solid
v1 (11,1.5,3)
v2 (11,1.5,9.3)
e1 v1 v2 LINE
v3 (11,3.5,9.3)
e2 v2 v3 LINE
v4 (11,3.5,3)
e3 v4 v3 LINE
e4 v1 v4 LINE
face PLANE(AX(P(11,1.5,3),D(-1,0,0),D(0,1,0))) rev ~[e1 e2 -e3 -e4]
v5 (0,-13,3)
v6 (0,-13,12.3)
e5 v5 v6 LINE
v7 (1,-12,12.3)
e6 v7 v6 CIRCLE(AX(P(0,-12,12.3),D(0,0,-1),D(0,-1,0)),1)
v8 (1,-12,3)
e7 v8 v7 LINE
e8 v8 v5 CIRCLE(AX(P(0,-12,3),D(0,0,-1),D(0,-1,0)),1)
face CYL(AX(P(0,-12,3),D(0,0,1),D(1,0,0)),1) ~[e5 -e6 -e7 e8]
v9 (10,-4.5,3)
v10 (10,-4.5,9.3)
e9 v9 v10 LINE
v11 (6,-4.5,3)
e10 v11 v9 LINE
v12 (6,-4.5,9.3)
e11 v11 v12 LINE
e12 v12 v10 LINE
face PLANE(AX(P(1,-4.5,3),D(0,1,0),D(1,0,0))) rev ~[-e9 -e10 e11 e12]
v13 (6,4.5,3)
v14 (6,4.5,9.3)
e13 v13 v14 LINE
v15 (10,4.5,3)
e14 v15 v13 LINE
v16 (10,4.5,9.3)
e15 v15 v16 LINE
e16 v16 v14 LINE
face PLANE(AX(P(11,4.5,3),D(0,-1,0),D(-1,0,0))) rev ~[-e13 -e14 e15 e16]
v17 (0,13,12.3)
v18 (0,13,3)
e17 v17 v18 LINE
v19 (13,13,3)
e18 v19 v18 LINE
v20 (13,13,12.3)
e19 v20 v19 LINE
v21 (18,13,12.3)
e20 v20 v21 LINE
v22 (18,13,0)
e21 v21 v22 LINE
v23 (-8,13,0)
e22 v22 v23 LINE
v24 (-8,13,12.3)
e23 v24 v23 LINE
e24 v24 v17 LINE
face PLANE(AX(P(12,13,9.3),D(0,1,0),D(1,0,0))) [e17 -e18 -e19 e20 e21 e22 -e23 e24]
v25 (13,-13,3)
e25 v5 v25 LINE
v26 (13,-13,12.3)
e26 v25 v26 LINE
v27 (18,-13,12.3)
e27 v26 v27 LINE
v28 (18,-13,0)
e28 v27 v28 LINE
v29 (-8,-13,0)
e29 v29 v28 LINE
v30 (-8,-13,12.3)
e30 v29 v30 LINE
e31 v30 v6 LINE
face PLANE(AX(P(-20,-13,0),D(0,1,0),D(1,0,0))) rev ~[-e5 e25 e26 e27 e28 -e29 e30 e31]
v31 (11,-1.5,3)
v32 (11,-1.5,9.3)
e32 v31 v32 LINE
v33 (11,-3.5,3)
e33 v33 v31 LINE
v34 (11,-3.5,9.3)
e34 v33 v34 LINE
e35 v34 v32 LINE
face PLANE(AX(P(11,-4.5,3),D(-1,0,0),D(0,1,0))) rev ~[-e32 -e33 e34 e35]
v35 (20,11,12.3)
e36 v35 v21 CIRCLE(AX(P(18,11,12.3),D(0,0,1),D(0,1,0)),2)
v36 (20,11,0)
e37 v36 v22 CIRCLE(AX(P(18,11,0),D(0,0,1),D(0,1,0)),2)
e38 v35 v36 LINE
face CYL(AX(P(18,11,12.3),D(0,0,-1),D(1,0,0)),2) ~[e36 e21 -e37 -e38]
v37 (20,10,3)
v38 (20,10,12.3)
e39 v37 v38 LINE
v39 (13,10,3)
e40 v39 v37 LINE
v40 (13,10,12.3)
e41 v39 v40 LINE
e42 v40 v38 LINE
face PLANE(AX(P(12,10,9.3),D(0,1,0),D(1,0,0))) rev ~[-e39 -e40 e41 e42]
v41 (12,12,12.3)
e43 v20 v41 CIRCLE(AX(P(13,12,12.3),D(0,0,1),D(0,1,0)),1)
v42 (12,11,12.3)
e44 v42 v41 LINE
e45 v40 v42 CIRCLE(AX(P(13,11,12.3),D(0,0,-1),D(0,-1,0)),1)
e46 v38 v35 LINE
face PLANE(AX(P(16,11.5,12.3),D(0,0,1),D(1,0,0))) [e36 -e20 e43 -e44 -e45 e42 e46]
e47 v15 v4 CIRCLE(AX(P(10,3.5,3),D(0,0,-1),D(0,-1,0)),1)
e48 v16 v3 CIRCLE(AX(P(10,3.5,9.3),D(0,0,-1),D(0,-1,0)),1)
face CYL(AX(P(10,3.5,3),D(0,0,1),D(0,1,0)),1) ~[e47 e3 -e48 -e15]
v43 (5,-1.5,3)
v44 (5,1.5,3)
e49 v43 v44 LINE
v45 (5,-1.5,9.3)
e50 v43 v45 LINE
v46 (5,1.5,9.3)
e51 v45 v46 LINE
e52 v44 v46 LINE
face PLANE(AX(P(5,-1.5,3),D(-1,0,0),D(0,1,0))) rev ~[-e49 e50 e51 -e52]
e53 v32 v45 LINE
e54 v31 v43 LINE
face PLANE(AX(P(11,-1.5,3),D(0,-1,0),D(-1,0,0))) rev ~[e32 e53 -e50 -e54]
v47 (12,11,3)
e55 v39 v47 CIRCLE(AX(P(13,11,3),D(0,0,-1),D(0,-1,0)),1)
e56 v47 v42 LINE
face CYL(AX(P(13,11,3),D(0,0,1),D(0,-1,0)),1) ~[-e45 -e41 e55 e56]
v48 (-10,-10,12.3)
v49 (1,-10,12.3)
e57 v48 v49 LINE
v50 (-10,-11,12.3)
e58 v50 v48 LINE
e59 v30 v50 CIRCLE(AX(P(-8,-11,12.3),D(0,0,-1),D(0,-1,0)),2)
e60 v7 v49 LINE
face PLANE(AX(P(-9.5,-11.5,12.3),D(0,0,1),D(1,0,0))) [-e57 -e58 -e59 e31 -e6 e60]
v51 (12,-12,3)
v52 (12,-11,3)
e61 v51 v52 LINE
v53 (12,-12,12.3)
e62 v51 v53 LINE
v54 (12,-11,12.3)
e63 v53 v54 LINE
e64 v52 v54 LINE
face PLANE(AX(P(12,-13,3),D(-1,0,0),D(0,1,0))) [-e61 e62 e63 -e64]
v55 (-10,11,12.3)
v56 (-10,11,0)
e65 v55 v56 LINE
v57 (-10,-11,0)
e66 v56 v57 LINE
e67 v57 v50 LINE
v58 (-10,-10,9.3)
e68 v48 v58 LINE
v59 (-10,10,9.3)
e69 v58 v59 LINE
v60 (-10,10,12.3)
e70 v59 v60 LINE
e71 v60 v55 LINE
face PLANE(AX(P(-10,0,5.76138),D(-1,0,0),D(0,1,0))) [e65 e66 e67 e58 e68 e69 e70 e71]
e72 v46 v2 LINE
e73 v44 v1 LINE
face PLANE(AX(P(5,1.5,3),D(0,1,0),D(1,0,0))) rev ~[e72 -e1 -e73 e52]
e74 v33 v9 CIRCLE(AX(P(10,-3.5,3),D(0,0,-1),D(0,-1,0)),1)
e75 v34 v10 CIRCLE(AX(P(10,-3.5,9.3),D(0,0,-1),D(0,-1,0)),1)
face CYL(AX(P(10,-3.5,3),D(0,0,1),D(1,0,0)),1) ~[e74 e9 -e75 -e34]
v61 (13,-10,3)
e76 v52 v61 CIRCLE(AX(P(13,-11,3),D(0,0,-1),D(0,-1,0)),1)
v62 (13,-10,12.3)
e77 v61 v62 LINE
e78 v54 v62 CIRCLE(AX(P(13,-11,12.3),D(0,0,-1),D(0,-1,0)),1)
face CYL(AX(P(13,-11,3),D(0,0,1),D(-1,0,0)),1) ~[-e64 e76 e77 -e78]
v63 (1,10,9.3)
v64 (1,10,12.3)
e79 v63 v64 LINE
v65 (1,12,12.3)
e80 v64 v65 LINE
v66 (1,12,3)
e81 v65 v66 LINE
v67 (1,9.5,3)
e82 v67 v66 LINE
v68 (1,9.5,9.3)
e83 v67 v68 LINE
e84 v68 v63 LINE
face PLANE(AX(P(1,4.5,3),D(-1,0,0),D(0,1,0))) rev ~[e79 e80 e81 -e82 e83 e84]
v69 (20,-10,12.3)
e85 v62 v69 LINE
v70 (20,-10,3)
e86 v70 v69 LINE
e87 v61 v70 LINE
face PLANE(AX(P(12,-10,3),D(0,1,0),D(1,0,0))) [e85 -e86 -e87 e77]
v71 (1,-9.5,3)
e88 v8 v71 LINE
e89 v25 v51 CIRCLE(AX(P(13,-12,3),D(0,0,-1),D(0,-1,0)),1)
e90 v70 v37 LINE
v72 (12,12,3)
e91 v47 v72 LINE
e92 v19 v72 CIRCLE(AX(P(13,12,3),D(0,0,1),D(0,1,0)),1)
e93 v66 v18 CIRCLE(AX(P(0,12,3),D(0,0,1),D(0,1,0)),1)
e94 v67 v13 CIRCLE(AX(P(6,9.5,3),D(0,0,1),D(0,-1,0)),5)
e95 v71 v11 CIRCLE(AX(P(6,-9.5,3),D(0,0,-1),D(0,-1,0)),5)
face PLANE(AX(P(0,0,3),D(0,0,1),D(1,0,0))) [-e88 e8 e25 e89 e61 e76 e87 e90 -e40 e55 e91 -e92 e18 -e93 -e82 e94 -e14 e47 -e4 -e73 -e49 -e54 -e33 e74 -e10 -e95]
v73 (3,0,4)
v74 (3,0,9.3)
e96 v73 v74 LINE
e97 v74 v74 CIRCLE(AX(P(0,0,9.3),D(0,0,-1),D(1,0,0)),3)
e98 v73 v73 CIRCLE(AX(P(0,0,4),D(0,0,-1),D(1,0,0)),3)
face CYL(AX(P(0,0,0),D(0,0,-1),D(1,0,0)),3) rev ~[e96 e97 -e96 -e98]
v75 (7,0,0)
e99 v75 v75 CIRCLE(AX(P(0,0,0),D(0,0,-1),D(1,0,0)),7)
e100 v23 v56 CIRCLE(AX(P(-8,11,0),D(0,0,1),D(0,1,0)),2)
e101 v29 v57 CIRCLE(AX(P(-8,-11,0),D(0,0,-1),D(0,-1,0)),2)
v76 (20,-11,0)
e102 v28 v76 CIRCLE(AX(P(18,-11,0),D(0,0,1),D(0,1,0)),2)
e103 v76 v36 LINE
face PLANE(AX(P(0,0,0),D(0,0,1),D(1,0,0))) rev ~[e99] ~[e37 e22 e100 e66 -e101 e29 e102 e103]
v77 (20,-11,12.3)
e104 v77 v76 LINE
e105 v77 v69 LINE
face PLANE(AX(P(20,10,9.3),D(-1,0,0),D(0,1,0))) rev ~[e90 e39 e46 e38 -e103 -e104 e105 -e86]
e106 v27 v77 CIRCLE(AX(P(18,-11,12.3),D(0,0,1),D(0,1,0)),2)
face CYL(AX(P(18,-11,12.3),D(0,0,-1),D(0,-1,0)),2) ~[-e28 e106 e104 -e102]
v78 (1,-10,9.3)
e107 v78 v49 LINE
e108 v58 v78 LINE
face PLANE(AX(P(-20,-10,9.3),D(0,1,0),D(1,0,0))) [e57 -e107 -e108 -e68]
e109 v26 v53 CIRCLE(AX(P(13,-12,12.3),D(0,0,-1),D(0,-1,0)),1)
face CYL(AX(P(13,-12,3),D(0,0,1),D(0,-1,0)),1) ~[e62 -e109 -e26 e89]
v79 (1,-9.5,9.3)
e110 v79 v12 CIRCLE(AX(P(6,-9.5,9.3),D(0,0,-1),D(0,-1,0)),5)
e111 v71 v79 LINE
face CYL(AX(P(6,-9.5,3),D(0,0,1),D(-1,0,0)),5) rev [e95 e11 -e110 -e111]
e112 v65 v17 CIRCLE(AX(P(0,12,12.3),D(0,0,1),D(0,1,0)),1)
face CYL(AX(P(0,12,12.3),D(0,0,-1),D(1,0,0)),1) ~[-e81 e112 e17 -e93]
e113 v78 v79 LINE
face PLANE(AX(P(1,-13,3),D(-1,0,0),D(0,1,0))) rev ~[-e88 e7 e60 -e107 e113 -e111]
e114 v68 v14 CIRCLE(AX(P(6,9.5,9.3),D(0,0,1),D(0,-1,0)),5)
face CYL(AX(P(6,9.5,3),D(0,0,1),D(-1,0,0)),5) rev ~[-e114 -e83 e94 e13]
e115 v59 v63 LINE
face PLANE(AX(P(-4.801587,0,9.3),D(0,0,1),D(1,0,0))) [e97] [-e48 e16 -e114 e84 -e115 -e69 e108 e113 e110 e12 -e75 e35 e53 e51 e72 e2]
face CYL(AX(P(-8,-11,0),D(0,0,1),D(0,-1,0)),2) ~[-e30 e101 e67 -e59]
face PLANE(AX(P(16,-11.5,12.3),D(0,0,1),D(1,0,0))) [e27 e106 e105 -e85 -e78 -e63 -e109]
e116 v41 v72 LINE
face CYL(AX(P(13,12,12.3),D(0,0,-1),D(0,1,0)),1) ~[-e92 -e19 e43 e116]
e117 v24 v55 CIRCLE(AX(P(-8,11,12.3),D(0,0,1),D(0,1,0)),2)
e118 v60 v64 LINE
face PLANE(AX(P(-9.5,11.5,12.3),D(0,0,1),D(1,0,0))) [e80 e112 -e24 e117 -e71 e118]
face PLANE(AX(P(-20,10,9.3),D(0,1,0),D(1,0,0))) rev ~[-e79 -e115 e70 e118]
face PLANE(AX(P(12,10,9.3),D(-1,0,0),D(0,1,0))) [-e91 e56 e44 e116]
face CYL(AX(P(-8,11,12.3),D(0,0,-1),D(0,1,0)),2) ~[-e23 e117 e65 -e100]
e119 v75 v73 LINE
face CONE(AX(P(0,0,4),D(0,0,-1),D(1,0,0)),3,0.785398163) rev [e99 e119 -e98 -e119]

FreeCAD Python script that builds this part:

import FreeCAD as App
import Part
import Sketcher

V = App.Vector
Q = App.Units.Quantity


def edges_at(feature, points):
    """Names of the edges that pass closest to the given points."""
    edges = feature.Shape.Edges
    near = lambda p: min(range(len(edges)), key=lambda i: edges[i].distToShape(Part.Vertex(*p))[0])
    return sorted({f"Edge{near(p) + 1}" for p in points})


def add_polygon(sketch, points):
    """Adds a closed chain of lines whose ends are joined by coincident constraints."""
    first, n = sketch.GeometryCount, len(points)
    for a, b in zip(points, points[1:] + points[:1]):
        sketch.addGeometry(Part.LineSegment(App.Vector(*a, 0), App.Vector(*b, 0)), False)
    for i in range(n):
        sketch.addConstraint(Sketcher.Constraint("Coincident", first + i, 2, first + (i + 1) % n, 1))

doc = App.newDocument("Part")
body = doc.addObject("PartDesign::Body", "Body")

# Sketch on XY plane
sketch1 = body.newObject("Sketcher::SketchObject", "Sketch")
sketch1.AttachmentSupport = (doc.getObject("XY_Plane"), [""])
sketch1.MapMode = "FlatFace"
add_polygon(sketch1, [(20, 13), (-20, 13), (-20, -13), (20, -13)])  # lines 0-3
sketch1.addConstraint(Sketcher.Constraint("Horizontal", 0))
sketch1.addConstraint(Sketcher.Constraint("Vertical", 1))
sketch1.addConstraint(Sketcher.Constraint("Horizontal", 2))
sketch1.addConstraint(Sketcher.Constraint("Vertical", 3))
sketch1.addConstraint(Sketcher.Constraint("Symmetric", 0, 2, 2, 2, -1, 1))
sketch1.addConstraint(Sketcher.Constraint("DistanceX", 0, 2, 0, 1, Q("40 mm")))
sketch1.addConstraint(Sketcher.Constraint("DistanceY", 1, 2, 1, 1, Q("26 mm")))
pad1 = body.newObject("PartDesign::Pad", "Pad")
pad1.Profile = sketch1
pad1.Length = 3

# Sketch on XY plane
sketch2 = body.newObject("Sketcher::SketchObject", "Sketch001")
sketch2.AttachmentSupport = (doc.getObject("XY_Plane"), [""])
sketch2.MapMode = "FlatFace"
sketch2.AttachmentOffset = App.Placement(V(0, 0, 3), App.Rotation())
add_polygon(sketch2, [(12, 13), (12, 10), (20, 10), (20, 13)])  # lines 0-3
add_polygon(sketch2, [(12, -10), (12, -13), (20, -13), (20, -10)])  # lines 4-7
add_polygon(sketch2, [(11, 1.5), (11, 4.5), (1, 4.5), (1, 13), (-20, 13), (-20, -13), (1, -13), (1, -4.5), (11, -4.5), (11, -1.5), (5, -1.5), (5, 1.5)])  # lines 8-19
sketch2.addConstraint(Sketcher.Constraint("Vertical", 0))
sketch2.addConstraint(Sketcher.Constraint("Horizontal", 1))
sketch2.addConstraint(Sketcher.Constraint("Vertical", 2))
sketch2.addConstraint(Sketcher.Constraint("Horizontal", 3))
sketch2.addConstraint(Sketcher.Constraint("Vertical", 4))
sketch2.addConstraint(Sketcher.Constraint("Horizontal", 5))
sketch2.addConstraint(Sketcher.Constraint("Vertical", 6))
sketch2.addConstraint(Sketcher.Constraint("Horizontal", 7))
sketch2.addConstraint(Sketcher.Constraint("Vertical", 8))
sketch2.addConstraint(Sketcher.Constraint("Horizontal", 9))
sketch2.addConstraint(Sketcher.Constraint("Vertical", 10))
sketch2.addConstraint(Sketcher.Constraint("Horizontal", 11))
sketch2.addConstraint(Sketcher.Constraint("Vertical", 12))
sketch2.addConstraint(Sketcher.Constraint("Horizontal", 13))
sketch2.addConstraint(Sketcher.Constraint("Vertical", 14))
sketch2.addConstraint(Sketcher.Constraint("Horizontal", 15))
sketch2.addConstraint(Sketcher.Constraint("Vertical", 16))
sketch2.addConstraint(Sketcher.Constraint("Horizontal", 17))
sketch2.addConstraint(Sketcher.Constraint("Vertical", 18))
sketch2.addConstraint(Sketcher.Constraint("Horizontal", 19))
sketch2.addConstraint(Sketcher.Constraint("Symmetric", 5, 2, 11, 2, -1, 1))
sketch2.addConstraint(Sketcher.Constraint("Symmetric", 2, 2, 12, 2, -1, 1))
sketch2.addConstraint(Sketcher.Constraint("Symmetric", 3, 2, 4, 2, -1))
sketch2.addConstraint(Sketcher.Constraint("Symmetric", 9, 2, 14, 2, -1))
sketch2.addConstraint(Sketcher.Constraint("Symmetric", 16, 2, 19, 2, -1))
sketch2.addConstraint(Sketcher.Constraint("Equal", 2, 4))
sketch2.addConstraint(Sketcher.Constraint("Equal", 6, 8))
sketch2.addConstraint(Sketcher.Constraint("Equal", 16, 18))
sketch2.addConstraint(Sketcher.Constraint("DistanceX", 1, 1, 1, 2, Q("8 mm")))
sketch2.addConstraint(Sketcher.Constraint("DistanceX", 9, 2, 9, 1, Q("10 mm")))
sketch2.addConstraint(Sketcher.Constraint("DistanceX", 11, 2, 11, 1, Q("21 mm")))
sketch2.addConstraint(Sketcher.Constraint("DistanceX", 17, 2, 17, 1, Q("6 mm")))
sketch2.addConstraint(Sketcher.Constraint("DistanceY", 0, 2, 0, 1, Q("3 mm")))
sketch2.addConstraint(Sketcher.Constraint("DistanceY", 12, 2, 12, 1, Q("26 mm")))
sketch2.addConstraint(Sketcher.Constraint("DistanceX", -1, 1, 0, 2, Q("12 mm")))
pad2 = body.newObject("PartDesign::Pad", "Pad001")
pad2.Profile = sketch2
pad2.Length = 6.3

# Sketch on XY plane
sketch3 = body.newObject("Sketcher::SketchObject", "Sketch002")
sketch3.AttachmentSupport = (doc.getObject("XY_Plane"), [""])
sketch3.MapMode = "FlatFace"
sketch3.AttachmentOffset = App.Placement(V(0, 0, 9.3), App.Rotation())
add_polygon(sketch3, [(12, 13), (12, 10), (20, 10), (20, 13)])  # lines 0-3
add_polygon(sketch3, [(-20, 13), (-20, 10), (1, 10), (1, 13)])  # lines 4-7
add_polygon(sketch3, [(12, -10), (12, -13), (20, -13), (20, -10)])  # lines 8-11
add_polygon(sketch3, [(-20, -10), (-20, -13), (1, -13), (1, -10)])  # lines 12-15
sketch3.addConstraint(Sketcher.Constraint("Vertical", 0))
sketch3.addConstraint(Sketcher.Constraint("Horizontal", 1))
sketch3.addConstraint(Sketcher.Constraint("Vertical", 2))
sketch3.addConstraint(Sketcher.Constraint("Horizontal", 3))
sketch3.addConstraint(Sketcher.Constraint("Vertical", 4))
sketch3.addConstraint(Sketcher.Constraint("Horizontal", 5))
sketch3.addConstraint(Sketcher.Constraint("Vertical", 6))
sketch3.addConstraint(Sketcher.Constraint("Horizontal", 7))
sketch3.addConstraint(Sketcher.Constraint("Vertical", 8))
sketch3.addConstraint(Sketcher.Constraint("Horizontal", 9))
sketch3.addConstraint(Sketcher.Constraint("Vertical", 10))
sketch3.addConstraint(Sketcher.Constraint("Horizontal", 11))
sketch3.addConstraint(Sketcher.Constraint("Vertical", 12))
sketch3.addConstraint(Sketcher.Constraint("Horizontal", 13))
sketch3.addConstraint(Sketcher.Constraint("Vertical", 14))
sketch3.addConstraint(Sketcher.Constraint("Horizontal", 15))
sketch3.addConstraint(Sketcher.Constraint("Symmetric", 7, 2, 9, 2, -1, 1))
sketch3.addConstraint(Sketcher.Constraint("Symmetric", 2, 2, 12, 2, -1, 1))
sketch3.addConstraint(Sketcher.Constraint("Symmetric", 1, 2, 4, 2, -2))
sketch3.addConstraint(Sketcher.Constraint("Symmetric", 3, 2, 8, 2, -1))
sketch3.addConstraint(Sketcher.Constraint("Symmetric", 5, 2, 14, 2, -1))
sketch3.addConstraint(Sketcher.Constraint("Horizontal", 11, 2, 14, 2))
sketch3.addConstraint(Sketcher.Constraint("DistanceX", 1, 1, 1, 2, Q("8 mm")))
sketch3.addConstraint(Sketcher.Constraint("DistanceX", 5, 1, 5, 2, Q("21 mm")))
sketch3.addConstraint(Sketcher.Constraint("DistanceY", 0, 2, 0, 1, Q("3 mm")))
sketch3.addConstraint(Sketcher.Constraint("DistanceX", -1, 1, 0, 2, Q("12 mm")))
sketch3.addConstraint(Sketcher.Constraint("DistanceY", -1, 1, 0, 2, Q("10 mm")))
pad3 = body.newObject("PartDesign::Pad", "Pad002")
pad3.Profile = sketch3
pad3.Length = 3

# Sketch on XY plane
sketch4 = body.newObject("Sketcher::SketchObject", "Sketch003")
sketch4.AttachmentSupport = (doc.getObject("XY_Plane"), [""])
sketch4.MapMode = "FlatFace"
sketch4.addGeometry(Part.Circle(V(0, 0, 0), V(0, 0, 1), 3), False)
sketch4.addConstraint(Sketcher.Constraint("Coincident", 0, 3, -1, 1))
sketch4.addConstraint(Sketcher.Constraint("Diameter", 0, Q("6 mm")))
pocket1 = body.newObject("PartDesign::Pocket", "Pocket")
pocket1.Profile = sketch4
pocket1.Length = 20
pocket1.Reversed = True
doc.recompute()

chamfer = body.newObject("PartDesign::Chamfer", "Chamfer")
chamfer.Base = (pocket1, edges_at(pocket1, [(-3, 0, 0)]))
chamfer.ChamferType = "Two distances"
chamfer.Size = 4
chamfer.Size2 = 4
doc.recompute()

fillet = body.newObject("PartDesign::Fillet", "Fillet")
fillet.Base = (chamfer, edges_at(chamfer, [(1, 4.5, 6.15), (1, -4.5, 6.15)]))
fillet.Radius = 5
doc.recompute()

fillet2 = body.newObject("PartDesign::Fillet", "Fillet001")
fillet2.Base = (fillet, edges_at(fillet, [
    (11, 4.5, 6.15),
    (12, 10, 7.65),
    (11, -4.5, 6.15),
    (12, -10, 7.65),
    (1, 13, 7.65),
    (12, 13, 7.65),
    (1, -13, 7.65),
    (12, -13, 7.65),
]))
fillet2.Radius = 1

# Sketch on YZ plane
sketch5 = body.newObject("Sketcher::SketchObject", "Sketch004")
sketch5.AttachmentSupport = (doc.getObject("YZ_Plane"), [""])
sketch5.MapMode = "FlatFace"
sketch5.AttachmentOffset = App.Placement(V(0, 0, -20), App.Rotation())
add_polygon(sketch5, [(13, 0), (-13, 0), (-13, 12.3), (-10, 12.3), (-10, 9.3), (10, 9.3), (10, 12.3), (13, 12.3)])  # lines 0-7
sketch5.addConstraint(Sketcher.Constraint("Horizontal", 0))
sketch5.addConstraint(Sketcher.Constraint("Vertical", 1))
sketch5.addConstraint(Sketcher.Constraint("Horizontal", 2))
sketch5.addConstraint(Sketcher.Constraint("Vertical", 3))
sketch5.addConstraint(Sketcher.Constraint("Horizontal", 4))
sketch5.addConstraint(Sketcher.Constraint("Vertical", 5))
sketch5.addConstraint(Sketcher.Constraint("Horizontal", 6))
sketch5.addConstraint(Sketcher.Constraint("Vertical", 7))
sketch5.addConstraint(Sketcher.Constraint("Symmetric", 0, 2, 7, 2, -1, 1))
sketch5.addConstraint(Sketcher.Constraint("Symmetric", 2, 2, 5, 2, -2))
sketch5.addConstraint(Sketcher.Constraint("Equal", 6, 3))
sketch5.addConstraint(Sketcher.Constraint("DistanceX", 0, 2, 0, 1, Q("26 mm")))
sketch5.addConstraint(Sketcher.Constraint("DistanceX", 2, 1, 2, 2, Q("3 mm")))
sketch5.addConstraint(Sketcher.Constraint("DistanceY", 1, 1, 1, 2, Q("12.3 mm")))
pocket2 = body.newObject("PartDesign::Pocket", "Pocket001")
pocket2.Profile = sketch5
pocket2.Length = 10
pocket2.Reversed = True
doc.recompute()

fillet3 = body.newObject("PartDesign::Fillet", "Fillet002")
fillet3.Base = (pocket2, edges_at(pocket2, [
    (-10, 13, 6.15),
    (20, 13, 6.15),
    (20, -13, 6.15),
    (-10, -13, 6.15),
]))
fillet3.Radius = 2

doc.recompute()
